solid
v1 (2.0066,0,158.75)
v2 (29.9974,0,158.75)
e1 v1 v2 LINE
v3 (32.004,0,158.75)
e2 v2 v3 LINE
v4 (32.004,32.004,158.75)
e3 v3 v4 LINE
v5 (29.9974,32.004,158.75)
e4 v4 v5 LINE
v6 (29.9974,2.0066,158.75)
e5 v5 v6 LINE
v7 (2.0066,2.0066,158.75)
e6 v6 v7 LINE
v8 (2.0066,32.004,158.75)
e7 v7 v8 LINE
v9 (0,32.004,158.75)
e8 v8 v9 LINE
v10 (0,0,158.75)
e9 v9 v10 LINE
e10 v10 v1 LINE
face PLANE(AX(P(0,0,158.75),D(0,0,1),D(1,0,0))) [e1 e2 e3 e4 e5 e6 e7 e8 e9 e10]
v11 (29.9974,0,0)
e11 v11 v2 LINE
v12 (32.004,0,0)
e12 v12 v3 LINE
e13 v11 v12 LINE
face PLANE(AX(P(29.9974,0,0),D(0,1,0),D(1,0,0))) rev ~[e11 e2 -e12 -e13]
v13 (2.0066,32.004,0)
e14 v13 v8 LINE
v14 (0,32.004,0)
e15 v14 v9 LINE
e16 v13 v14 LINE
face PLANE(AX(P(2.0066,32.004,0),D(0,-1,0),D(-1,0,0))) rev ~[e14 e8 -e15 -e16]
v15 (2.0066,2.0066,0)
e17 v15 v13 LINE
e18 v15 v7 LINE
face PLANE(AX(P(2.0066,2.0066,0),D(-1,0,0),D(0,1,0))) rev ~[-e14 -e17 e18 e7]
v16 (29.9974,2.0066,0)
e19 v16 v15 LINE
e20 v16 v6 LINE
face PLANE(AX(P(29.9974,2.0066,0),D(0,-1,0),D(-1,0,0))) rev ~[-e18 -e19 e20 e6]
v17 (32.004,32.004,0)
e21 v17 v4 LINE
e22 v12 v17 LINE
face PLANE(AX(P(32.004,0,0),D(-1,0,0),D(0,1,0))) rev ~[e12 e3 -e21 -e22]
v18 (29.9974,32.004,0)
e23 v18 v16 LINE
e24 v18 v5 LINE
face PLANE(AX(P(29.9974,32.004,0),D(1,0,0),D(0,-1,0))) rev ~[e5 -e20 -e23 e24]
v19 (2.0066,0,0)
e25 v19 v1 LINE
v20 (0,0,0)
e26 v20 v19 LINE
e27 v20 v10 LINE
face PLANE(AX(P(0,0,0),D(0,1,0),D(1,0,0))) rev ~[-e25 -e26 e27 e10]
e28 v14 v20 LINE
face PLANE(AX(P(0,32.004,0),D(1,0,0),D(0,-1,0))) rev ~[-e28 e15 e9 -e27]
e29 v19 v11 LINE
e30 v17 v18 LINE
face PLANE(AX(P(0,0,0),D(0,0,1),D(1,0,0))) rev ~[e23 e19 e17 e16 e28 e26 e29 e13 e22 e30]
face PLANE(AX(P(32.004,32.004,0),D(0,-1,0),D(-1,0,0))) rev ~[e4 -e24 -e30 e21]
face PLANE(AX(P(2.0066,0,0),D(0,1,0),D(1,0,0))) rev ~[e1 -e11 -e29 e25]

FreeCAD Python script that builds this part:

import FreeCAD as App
import Part
import Sketcher
Q = App.Units.Quantity


def add_polygon(sketch, points):
    """Adds a closed chain of lines whose ends are joined by coincident constraints."""
    first, n = sketch.GeometryCount, len(points)
    for a, b in zip(points, points[1:] + points[:1]):
        sketch.addGeometry(Part.LineSegment(App.Vector(*a, 0), App.Vector(*b, 0)), False)
    for i in range(n):
        sketch.addConstraint(Sketcher.Constraint("Coincident", first + i, 2, first + (i + 1) % n, 1))

doc = App.newDocument("Part")
body = doc.addObject("PartDesign::Body", "Body")

sketch1 = doc.addObject("Sketcher::SketchObject", "Sketch")
body.addObject(sketch1)
sketch1.AttachmentSupport = (doc.XY_Plane, [""])
sketch1.MapMode = "FlatFace"
add_polygon(sketch1, [(2.0066, 2.0066), (2.0066, 32.004), (0, 32.004), (0, 0), (32.004, 0), (32.004, 32.004), (29.9974, 32.004), (29.9974, 2.0066)])
sketch1.addConstraint([
    Sketcher.Constraint("Vertical", 0),
    Sketcher.Constraint("Horizontal", 1),
    Sketcher.Constraint("Vertical", 2),
    Sketcher.Constraint("Horizontal", 3),
    Sketcher.Constraint("Vertical", 4),
    Sketcher.Constraint("Horizontal", 5),
    Sketcher.Constraint("Vertical", 6),
    Sketcher.Constraint("Horizontal", 7),
    Sketcher.Constraint("Coincident", 2, 2, -1, 1),
    Sketcher.Constraint("Horizontal", 1, 2, 4, 2),
    Sketcher.Constraint("Equal", 1, 5),
    Sketcher.Constraint("Equal", 3, 2),
    Sketcher.Constraint("DistanceX", 3, 1, 3, 2, Q("1.26 in")),
    Sketcher.Constraint("DistanceX", 1, 2, 1, 1, Q("0.079 in")),
    Sketcher.Constraint("DistanceY", -1, 1, 6, 2, Q("0.079 in")),
])
pad1 = doc.addObject("PartDesign::Pad", "Pad")
body.addObject(pad1)
pad1.Profile = sketch1
pad1.Length = Q("6.25 in")

doc.recompute()
